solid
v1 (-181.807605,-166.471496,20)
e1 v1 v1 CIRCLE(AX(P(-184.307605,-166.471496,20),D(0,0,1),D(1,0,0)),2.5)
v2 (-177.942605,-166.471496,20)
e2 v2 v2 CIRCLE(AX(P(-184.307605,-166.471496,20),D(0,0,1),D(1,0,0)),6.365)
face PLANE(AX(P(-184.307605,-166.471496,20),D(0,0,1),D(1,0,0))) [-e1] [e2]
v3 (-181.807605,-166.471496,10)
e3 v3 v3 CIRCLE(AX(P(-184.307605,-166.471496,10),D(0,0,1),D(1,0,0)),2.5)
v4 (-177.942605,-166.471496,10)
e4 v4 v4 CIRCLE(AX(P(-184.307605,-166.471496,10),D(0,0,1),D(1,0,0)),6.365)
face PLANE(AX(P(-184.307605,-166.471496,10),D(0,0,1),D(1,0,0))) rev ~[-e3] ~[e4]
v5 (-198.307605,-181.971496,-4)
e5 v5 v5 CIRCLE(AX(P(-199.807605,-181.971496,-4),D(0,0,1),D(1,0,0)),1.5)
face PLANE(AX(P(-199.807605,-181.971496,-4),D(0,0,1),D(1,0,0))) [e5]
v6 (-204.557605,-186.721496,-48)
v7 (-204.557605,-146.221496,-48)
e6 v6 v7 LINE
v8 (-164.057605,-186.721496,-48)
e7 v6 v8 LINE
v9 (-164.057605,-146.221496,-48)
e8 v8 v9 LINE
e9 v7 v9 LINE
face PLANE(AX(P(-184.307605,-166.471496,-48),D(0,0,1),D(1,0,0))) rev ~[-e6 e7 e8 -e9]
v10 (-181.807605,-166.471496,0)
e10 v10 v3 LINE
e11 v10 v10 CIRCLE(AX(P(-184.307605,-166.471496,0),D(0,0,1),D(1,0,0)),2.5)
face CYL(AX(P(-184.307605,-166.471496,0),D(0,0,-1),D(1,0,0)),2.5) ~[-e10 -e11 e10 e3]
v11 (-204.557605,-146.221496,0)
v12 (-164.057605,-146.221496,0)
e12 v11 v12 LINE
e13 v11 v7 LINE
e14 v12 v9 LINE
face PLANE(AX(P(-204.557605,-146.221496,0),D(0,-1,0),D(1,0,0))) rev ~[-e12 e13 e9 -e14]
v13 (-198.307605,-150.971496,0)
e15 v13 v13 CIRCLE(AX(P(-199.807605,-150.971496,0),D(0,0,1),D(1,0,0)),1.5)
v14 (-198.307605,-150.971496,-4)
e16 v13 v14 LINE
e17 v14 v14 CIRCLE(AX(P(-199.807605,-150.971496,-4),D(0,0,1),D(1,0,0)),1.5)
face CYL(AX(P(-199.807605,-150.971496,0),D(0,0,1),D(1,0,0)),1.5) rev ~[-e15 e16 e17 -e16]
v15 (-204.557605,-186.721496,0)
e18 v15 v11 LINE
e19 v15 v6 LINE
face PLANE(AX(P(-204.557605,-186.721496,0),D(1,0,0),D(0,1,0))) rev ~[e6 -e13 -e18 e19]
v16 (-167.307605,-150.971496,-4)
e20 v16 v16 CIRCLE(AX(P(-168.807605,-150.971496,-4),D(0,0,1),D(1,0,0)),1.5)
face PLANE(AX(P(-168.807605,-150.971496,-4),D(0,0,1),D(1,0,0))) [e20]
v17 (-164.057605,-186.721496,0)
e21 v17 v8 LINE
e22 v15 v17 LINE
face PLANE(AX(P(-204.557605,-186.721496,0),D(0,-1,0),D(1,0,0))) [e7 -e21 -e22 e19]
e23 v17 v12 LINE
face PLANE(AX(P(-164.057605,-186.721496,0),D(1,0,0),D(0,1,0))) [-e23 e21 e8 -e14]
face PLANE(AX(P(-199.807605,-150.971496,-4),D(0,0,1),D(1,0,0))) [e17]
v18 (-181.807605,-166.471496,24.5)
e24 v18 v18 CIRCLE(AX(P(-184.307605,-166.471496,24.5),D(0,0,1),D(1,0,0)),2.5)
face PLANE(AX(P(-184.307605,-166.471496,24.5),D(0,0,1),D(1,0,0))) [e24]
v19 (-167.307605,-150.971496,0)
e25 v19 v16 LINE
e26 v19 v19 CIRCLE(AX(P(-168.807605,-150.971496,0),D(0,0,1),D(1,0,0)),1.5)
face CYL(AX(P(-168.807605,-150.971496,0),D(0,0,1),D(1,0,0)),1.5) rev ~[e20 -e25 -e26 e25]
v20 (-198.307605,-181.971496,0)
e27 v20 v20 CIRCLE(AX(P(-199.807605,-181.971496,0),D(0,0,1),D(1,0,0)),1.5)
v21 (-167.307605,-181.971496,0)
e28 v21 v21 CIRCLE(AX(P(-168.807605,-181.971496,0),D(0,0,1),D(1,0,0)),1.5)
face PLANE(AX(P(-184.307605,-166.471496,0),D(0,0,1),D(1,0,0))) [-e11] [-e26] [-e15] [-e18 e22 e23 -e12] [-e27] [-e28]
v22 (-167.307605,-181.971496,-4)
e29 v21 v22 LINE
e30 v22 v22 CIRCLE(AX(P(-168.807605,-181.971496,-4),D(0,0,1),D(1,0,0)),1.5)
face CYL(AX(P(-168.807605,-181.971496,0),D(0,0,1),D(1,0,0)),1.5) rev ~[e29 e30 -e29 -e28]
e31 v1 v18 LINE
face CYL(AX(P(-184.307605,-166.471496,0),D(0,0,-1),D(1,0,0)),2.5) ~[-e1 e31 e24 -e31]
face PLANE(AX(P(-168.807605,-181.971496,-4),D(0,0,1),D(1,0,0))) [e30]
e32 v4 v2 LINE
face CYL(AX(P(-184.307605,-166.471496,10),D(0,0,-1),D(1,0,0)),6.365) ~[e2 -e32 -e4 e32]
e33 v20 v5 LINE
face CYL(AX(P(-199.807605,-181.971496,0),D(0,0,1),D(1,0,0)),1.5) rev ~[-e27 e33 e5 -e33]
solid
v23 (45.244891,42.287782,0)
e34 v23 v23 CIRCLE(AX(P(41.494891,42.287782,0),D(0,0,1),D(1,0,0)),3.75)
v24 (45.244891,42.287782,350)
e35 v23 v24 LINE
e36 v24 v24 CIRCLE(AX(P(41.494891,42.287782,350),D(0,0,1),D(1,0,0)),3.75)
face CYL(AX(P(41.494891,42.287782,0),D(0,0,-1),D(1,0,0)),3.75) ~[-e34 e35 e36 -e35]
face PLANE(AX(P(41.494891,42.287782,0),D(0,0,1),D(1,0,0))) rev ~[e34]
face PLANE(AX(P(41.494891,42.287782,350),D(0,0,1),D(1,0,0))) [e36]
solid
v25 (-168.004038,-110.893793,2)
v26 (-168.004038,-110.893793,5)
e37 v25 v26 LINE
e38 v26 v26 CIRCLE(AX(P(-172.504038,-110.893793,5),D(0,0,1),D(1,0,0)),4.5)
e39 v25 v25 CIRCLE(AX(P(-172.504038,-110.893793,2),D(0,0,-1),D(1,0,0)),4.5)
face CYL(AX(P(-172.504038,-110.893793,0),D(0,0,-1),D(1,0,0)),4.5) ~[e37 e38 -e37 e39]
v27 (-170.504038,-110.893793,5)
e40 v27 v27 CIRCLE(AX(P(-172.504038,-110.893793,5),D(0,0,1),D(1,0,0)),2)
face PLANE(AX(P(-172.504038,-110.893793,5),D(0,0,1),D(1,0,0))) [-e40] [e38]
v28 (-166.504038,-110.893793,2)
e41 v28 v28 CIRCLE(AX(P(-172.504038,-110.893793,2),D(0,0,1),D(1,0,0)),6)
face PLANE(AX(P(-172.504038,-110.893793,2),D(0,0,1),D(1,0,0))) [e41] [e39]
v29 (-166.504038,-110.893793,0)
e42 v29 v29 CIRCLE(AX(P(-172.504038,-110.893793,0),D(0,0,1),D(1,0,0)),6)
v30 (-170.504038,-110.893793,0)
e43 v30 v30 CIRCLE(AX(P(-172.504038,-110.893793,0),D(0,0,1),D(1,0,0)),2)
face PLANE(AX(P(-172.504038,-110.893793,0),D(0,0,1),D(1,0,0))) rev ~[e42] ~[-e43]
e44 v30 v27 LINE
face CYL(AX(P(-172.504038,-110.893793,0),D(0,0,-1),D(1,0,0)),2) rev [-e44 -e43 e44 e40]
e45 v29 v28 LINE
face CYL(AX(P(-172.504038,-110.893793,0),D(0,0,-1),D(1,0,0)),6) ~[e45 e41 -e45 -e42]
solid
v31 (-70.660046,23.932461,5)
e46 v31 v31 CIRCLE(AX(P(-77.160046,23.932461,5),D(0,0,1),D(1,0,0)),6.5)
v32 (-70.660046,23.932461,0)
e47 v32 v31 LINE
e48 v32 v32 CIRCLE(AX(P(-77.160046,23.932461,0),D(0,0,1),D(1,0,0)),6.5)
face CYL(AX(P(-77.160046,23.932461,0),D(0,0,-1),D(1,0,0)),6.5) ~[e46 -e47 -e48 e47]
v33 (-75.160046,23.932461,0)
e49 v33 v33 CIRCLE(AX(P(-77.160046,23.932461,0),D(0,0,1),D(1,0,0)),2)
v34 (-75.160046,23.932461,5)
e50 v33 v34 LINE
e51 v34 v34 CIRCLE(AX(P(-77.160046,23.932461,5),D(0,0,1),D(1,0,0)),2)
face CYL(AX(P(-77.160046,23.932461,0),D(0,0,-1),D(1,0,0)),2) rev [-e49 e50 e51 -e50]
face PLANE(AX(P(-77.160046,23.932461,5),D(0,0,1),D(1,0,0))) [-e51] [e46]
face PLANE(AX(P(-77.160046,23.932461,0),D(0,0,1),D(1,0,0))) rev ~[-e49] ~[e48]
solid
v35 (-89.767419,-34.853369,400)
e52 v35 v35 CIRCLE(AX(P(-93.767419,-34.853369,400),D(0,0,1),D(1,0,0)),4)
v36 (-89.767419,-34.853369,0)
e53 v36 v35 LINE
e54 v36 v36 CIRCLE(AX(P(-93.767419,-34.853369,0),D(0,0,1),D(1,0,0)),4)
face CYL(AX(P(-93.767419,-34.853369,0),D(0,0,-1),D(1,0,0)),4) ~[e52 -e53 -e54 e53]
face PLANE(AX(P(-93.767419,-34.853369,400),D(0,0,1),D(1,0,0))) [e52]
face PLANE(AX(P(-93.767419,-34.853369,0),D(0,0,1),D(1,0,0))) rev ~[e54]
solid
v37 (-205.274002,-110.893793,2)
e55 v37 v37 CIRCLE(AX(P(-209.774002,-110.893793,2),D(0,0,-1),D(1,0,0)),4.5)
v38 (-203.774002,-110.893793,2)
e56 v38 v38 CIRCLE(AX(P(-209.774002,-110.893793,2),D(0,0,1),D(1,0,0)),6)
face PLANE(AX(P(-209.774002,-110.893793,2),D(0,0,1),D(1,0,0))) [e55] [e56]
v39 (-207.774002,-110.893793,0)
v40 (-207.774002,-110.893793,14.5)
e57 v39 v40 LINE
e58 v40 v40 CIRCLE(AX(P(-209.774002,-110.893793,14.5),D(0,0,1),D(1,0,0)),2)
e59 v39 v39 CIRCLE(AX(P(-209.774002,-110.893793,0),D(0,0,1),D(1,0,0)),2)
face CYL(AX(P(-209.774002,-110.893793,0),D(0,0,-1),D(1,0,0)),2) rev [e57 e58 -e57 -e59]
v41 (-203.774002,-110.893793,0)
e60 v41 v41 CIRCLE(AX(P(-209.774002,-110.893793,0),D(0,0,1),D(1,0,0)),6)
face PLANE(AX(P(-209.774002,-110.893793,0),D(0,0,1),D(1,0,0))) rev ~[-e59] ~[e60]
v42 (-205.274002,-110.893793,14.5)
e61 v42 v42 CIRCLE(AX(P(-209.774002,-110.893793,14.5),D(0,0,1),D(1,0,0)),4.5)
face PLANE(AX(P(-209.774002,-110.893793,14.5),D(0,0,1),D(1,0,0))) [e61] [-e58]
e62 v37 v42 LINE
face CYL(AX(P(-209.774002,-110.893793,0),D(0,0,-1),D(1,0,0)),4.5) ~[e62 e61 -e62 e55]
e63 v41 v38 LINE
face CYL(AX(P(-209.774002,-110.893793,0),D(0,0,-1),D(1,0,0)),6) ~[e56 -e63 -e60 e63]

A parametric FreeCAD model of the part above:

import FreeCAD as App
import Part
import Sketcher
from FreeCAD import Vector
Q = App.Units.Quantity

doc = App.newDocument("Part")
body = doc.addObject("PartDesign::Body", "Body")

sketch1 = doc.addObject("Sketcher::SketchObject", "Sketch")
body.addObject(sketch1)
sketch1.AttachmentSupport = (doc.XY_Plane, [""])
sketch1.MapMode = "FlatFace"
sketch1.addGeometry(Part.Circle(Vector(-93.767419, -34.853369, 0), Vector(0, 0, 1), 4), False)
sketch1.addConstraint([
    Sketcher.Constraint("Diameter", 0, Q("8 mm")),
    Sketcher.Constraint("DistanceX", 0, 3, -1, 1, Q("93.767419 mm")),
    Sketcher.Constraint("DistanceY", 0, 3, -1, 1, Q("34.853369 mm")),
])
pad1 = doc.addObject("PartDesign::Pad", "Pad")
body.addObject(pad1)
pad1.Profile = sketch1
pad1.Length = 400
body2 = doc.addObject("PartDesign::Body", "Body001")

sketch2 = doc.addObject("Sketcher::SketchObject", "Sketch001")
body2.addObject(sketch2)
sketch2.AttachmentSupport = (doc.getObject("XY_Plane001"), [""])
sketch2.MapMode = "FlatFace"
sketch2.addGeometry([
    Part.Circle(Vector(-77.160046, 23.932461, 0), Vector(0, 0, 1), 6.5),
    Part.Circle(Vector(-77.160046, 23.932461, 0), Vector(0, 0, 1), 2),
], False)
sketch2.addConstraint([
    Sketcher.Constraint("Coincident", 1, 3, 0, 3),
    Sketcher.Constraint("Diameter", 0, Q("13 mm")),
    Sketcher.Constraint("Diameter", 1, Q("4 mm")),
    Sketcher.Constraint("DistanceY", -1, 1, 0, 3, Q("23.932461 mm")),
    Sketcher.Constraint("DistanceX", 0, 3, -1, 1, Q("77.160046 mm")),
])
pad2 = doc.addObject("PartDesign::Pad", "Pad001")
body2.addObject(pad2)
pad2.Profile = sketch2
pad2.Length = 5
body3 = doc.addObject("PartDesign::Body", "Body002")

sketch3 = doc.addObject("Sketcher::SketchObject", "Sketch002")
body3.addObject(sketch3)
sketch3.AttachmentSupport = (doc.getObject("XY_Plane002"), [""])
sketch3.MapMode = "FlatFace"
sketch3.addGeometry([
    Part.LineSegment(Vector(-204.557605, -146.221496, 0), Vector(-204.557605, -186.721496, 0)),
    Part.LineSegment(Vector(-204.557605, -186.721496, 0), Vector(-164.057605, -186.721496, 0)),
    Part.LineSegment(Vector(-164.057605, -186.721496, 0), Vector(-164.057605, -146.221496, 0)),
    Part.LineSegment(Vector(-164.057605, -146.221496, 0), Vector(-204.557605, -146.221496, 0)),
], False)
sketch3.addConstraint([
    Sketcher.Constraint("Coincident", 0, 2, 1, 1),
    Sketcher.Constraint("Coincident", 1, 2, 2, 1),
    Sketcher.Constraint("Coincident", 2, 2, 3, 1),
    Sketcher.Constraint("Coincident", 3, 2, 0, 1),
    Sketcher.Constraint("Vertical", 0),
    Sketcher.Constraint("Horizontal", 1),
    Sketcher.Constraint("Vertical", 2),
    Sketcher.Constraint("Horizontal", 3),
    Sketcher.Constraint("Equal", 3, 0),
    Sketcher.Constraint("DistanceX", 1, 1, 1, 2, Q("40.5 mm")),
    Sketcher.Constraint("DistanceX", 0, 2, -1, 1, Q("204.557605 mm")),
    Sketcher.Constraint("DistanceY", 0, 2, -1, 1, Q("186.721496 mm")),
])
pad3 = doc.addObject("PartDesign::Pad", "Pad002")
body3.addObject(pad3)
pad3.Profile = sketch3
pad3.Length = 48
pad3.Reversed = True

sketch4 = doc.addObject("Sketcher::SketchObject", "Sketch003")
body3.addObject(sketch4)
sketch4.AttachmentSupport = (doc.getObject("XY_Plane002"), [""])
sketch4.MapMode = "FlatFace"
sketch4.addGeometry([
    Part.Circle(Vector(-199.807605, -150.971496, 0), Vector(0, 0, 1), 1.5),
    Part.Circle(Vector(-199.807605, -181.971496, 0), Vector(0, 0, 1), 1.5),
    Part.Circle(Vector(-168.807605, -181.971496, 0), Vector(0, 0, 1), 1.5),
    Part.Circle(Vector(-168.807605, -150.971496, 0), Vector(0, 0, 1), 1.5),
], False)
sketch4.addConstraint([
    Sketcher.Constraint("Equal", 0, 1),
    Sketcher.Constraint("Equal", 1, 2),
    Sketcher.Constraint("Equal", 2, 3),
    Sketcher.Constraint("Horizontal", 1, 3, 2, 3),
    Sketcher.Constraint("Horizontal", 0, 3, 3, 3),
    Sketcher.Constraint("Vertical", 0, 3, 1, 3),
    Sketcher.Constraint("Vertical", 2, 3, 3, 3),
    Sketcher.Constraint("Diameter", 0, Q("3 mm")),
    Sketcher.Constraint("DistanceY", 1, 3, 0, 3, Q("31 mm")),
    Sketcher.Constraint("DistanceX", 1, 3, 2, 3, Q("31 mm")),
    Sketcher.Constraint("DistanceX", 0, 3, -1, 1, Q("199.807605 mm")),
    Sketcher.Constraint("DistanceY", 0, 3, -1, 1, Q("150.971496 mm")),
])
pocket1 = doc.addObject("PartDesign::Pocket", "Pocket")
body3.addObject(pocket1)
pocket1.Profile = sketch4
pocket1.Length = 4

sketch5 = doc.addObject("Sketcher::SketchObject", "Sketch004")
body3.addObject(sketch5)
sketch5.AttachmentSupport = (doc.getObject("XY_Plane002"), [""])
sketch5.MapMode = "FlatFace"
sketch5.addGeometry(Part.Circle(Vector(-184.307605, -166.471496, 0), Vector(0, 0, 1), 2.5), False)
sketch5.addConstraint([
    Sketcher.Constraint("Diameter", 0, Q("5 mm")),
    Sketcher.Constraint("DistanceX", 0, 3, -1, 1, Q("184.307605 mm")),
    Sketcher.Constraint("DistanceY", 0, 3, -1, 1, Q("166.471496 mm")),
])
pad4 = doc.addObject("PartDesign::Pad", "Pad003")
body3.addObject(pad4)
pad4.Profile = sketch5
pad4.Length = 24.5

sketch6 = doc.addObject("Sketcher::SketchObject", "Sketch005")
body3.addObject(sketch6)
sketch6.AttachmentSupport = (doc.getObject("XY_Plane002"), [""])
sketch6.MapMode = "FlatFace"
sketch6.AttachmentOffset = App.Placement(Vector(0, 0, 10), App.Rotation())
sketch6.addGeometry([
    Part.Circle(Vector(-184.307605, -166.471496, 0), Vector(0, 0, 1), 6.365),
    Part.Circle(Vector(-184.307605, -166.471496, 0), Vector(0, 0, 1), 2.5),
], False)
sketch6.addConstraint([
    Sketcher.Constraint("Coincident", 1, 3, 0, 3),
    Sketcher.Constraint("Diameter", 1, Q("5 mm")),
    Sketcher.Constraint("Diameter", 0, Q("12.73 mm")),
    Sketcher.Constraint("DistanceX", 0, 3, -1, 1, Q("184.307605 mm")),
    Sketcher.Constraint("DistanceY", 0, 3, -1, 1, Q("166.471496 mm")),
])
pad5 = doc.addObject("PartDesign::Pad", "Pad004")
body3.addObject(pad5)
pad5.Profile = sketch6
pad5.Length = 10
body4 = doc.addObject("PartDesign::Body", "Body003")

sketch7 = doc.addObject("Sketcher::SketchObject", "Sketch006")
body4.addObject(sketch7)
sketch7.AttachmentSupport = (doc.getObject("XY_Plane003"), [""])
sketch7.MapMode = "FlatFace"
sketch7.addGeometry(Part.Circle(Vector(41.494891, 42.287782, 0), Vector(0, 0, 1), 3.75), False)
sketch7.addConstraint([
    Sketcher.Constraint("Diameter", 0, Q("7.5 mm")),
    Sketcher.Constraint("DistanceX", -1, 1, 0, 3, Q("41.494891 mm")),
    Sketcher.Constraint("DistanceY", -1, 1, 0, 3, Q("42.287782 mm")),
])
pad6 = doc.addObject("PartDesign::Pad", "Pad005")
body4.addObject(pad6)
pad6.Profile = sketch7
pad6.Length = 350
body5 = doc.addObject("PartDesign::Body", "Body004")

sketch8 = doc.addObject("Sketcher::SketchObject", "Sketch007")
body5.addObject(sketch8)
sketch8.AttachmentSupport = (doc.getObject("XY_Plane004"), [""])
sketch8.MapMode = "FlatFace"
sketch8.addGeometry([
    Part.Circle(Vector(-209.774002, -110.893793, 0), Vector(0, 0, 1), 6),
    Part.Circle(Vector(-209.774002, -110.893793, 0), Vector(0, 0, 1), 2),
], False)
sketch8.addConstraint([
    Sketcher.Constraint("Coincident", 1, 3, 0, 3),
    Sketcher.Constraint("Diameter", 0, Q("12 mm")),
    Sketcher.Constraint("Diameter", 1, Q("4 mm")),
    Sketcher.Constraint("DistanceX", 0, 3, -1, 1, Q("209.774002 mm")),
    Sketcher.Constraint("DistanceY", 0, 3, -1, 1, Q("110.893793 mm")),
])
pad7 = doc.addObject("PartDesign::Pad", "Pad006")
body5.addObject(pad7)
pad7.Profile = sketch8
pad7.Length = 2

sketch9 = doc.addObject("Sketcher::SketchObject", "Sketch008")
body5.addObject(sketch9)
sketch9.AttachmentSupport = (doc.getObject("XY_Plane004"), [""])
sketch9.MapMode = "FlatFace"
sketch9.addGeometry([
    Part.Circle(Vector(-209.774002, -110.893793, 0), Vector(0, 0, 1), 4.5),
    Part.Circle(Vector(-209.774002, -110.893793, 0), Vector(0, 0, 1), 2),
], False)
sketch9.addConstraint([
    Sketcher.Constraint("Coincident", 1, 3, 0, 3),
    Sketcher.Constraint("Diameter", 0, Q("9 mm")),
    Sketcher.Constraint("Diameter", 1, Q("4 mm")),
    Sketcher.Constraint("DistanceX", 0, 3, -1, 1, Q("209.774002 mm")),
    Sketcher.Constraint("DistanceY", 0, 3, -1, 1, Q("110.893793 mm")),
])
pad8 = doc.addObject("PartDesign::Pad", "Pad007")
body5.addObject(pad8)
pad8.Profile = sketch9
pad8.Length = 14.5
body6 = doc.addObject("PartDesign::Body", "Body005")

sketch10 = doc.addObject("Sketcher::SketchObject", "Sketch009")
body6.addObject(sketch10)
sketch10.AttachmentSupport = (doc.getObject("XY_Plane005"), [""])
sketch10.MapMode = "FlatFace"
sketch10.addGeometry([
    Part.Circle(Vector(-172.504038, -110.893793, 0), Vector(0, 0, 1), 6),
    Part.Circle(Vector(-172.504038, -110.893793, 0), Vector(0, 0, 1), 2),
], False)
sketch10.addConstraint([
    Sketcher.Constraint("Coincident", 1, 3, 0, 3),
    Sketcher.Constraint("Diameter", 0, Q("12 mm")),
    Sketcher.Constraint("Diameter", 1, Q("4 mm")),
    Sketcher.Constraint("DistanceX", 0, 3, -1, 1, Q("172.504038 mm")),
    Sketcher.Constraint("DistanceY", 0, 3, -1, 1, Q("110.893793 mm")),
])
pad9 = doc.addObject("PartDesign::Pad", "Pad008")
body6.addObject(pad9)
pad9.Profile = sketch10
pad9.Length = 2

sketch11 = doc.addObject("Sketcher::SketchObject", "Sketch010")
body6.addObject(sketch11)
sketch11.AttachmentSupport = (doc.getObject("XY_Plane005"), [""])
sketch11.MapMode = "FlatFace"
sketch11.addGeometry([
    Part.Circle(Vector(-172.504038, -110.893793, 0), Vector(0, 0, 1), 4.5),
    Part.Circle(Vector(-172.504038, -110.893793, 0), Vector(0, 0, 1), 2),
], False)
sketch11.addConstraint([
    Sketcher.Constraint("Coincident", 1, 3, 0, 3),
    Sketcher.Constraint("Diameter", 0, Q("9 mm")),
    Sketcher.Constraint("Diameter", 1, Q("4 mm")),
    Sketcher.Constraint("DistanceX", 0, 3, -1, 1, Q("172.504038 mm")),
    Sketcher.Constraint("DistanceY", 0, 3, -1, 1, Q("110.893793 mm")),
])
pad10 = doc.addObject("PartDesign::Pad", "Pad009")
body6.addObject(pad10)
pad10.Profile = sketch11
pad10.Length = 5

doc.recompute()
